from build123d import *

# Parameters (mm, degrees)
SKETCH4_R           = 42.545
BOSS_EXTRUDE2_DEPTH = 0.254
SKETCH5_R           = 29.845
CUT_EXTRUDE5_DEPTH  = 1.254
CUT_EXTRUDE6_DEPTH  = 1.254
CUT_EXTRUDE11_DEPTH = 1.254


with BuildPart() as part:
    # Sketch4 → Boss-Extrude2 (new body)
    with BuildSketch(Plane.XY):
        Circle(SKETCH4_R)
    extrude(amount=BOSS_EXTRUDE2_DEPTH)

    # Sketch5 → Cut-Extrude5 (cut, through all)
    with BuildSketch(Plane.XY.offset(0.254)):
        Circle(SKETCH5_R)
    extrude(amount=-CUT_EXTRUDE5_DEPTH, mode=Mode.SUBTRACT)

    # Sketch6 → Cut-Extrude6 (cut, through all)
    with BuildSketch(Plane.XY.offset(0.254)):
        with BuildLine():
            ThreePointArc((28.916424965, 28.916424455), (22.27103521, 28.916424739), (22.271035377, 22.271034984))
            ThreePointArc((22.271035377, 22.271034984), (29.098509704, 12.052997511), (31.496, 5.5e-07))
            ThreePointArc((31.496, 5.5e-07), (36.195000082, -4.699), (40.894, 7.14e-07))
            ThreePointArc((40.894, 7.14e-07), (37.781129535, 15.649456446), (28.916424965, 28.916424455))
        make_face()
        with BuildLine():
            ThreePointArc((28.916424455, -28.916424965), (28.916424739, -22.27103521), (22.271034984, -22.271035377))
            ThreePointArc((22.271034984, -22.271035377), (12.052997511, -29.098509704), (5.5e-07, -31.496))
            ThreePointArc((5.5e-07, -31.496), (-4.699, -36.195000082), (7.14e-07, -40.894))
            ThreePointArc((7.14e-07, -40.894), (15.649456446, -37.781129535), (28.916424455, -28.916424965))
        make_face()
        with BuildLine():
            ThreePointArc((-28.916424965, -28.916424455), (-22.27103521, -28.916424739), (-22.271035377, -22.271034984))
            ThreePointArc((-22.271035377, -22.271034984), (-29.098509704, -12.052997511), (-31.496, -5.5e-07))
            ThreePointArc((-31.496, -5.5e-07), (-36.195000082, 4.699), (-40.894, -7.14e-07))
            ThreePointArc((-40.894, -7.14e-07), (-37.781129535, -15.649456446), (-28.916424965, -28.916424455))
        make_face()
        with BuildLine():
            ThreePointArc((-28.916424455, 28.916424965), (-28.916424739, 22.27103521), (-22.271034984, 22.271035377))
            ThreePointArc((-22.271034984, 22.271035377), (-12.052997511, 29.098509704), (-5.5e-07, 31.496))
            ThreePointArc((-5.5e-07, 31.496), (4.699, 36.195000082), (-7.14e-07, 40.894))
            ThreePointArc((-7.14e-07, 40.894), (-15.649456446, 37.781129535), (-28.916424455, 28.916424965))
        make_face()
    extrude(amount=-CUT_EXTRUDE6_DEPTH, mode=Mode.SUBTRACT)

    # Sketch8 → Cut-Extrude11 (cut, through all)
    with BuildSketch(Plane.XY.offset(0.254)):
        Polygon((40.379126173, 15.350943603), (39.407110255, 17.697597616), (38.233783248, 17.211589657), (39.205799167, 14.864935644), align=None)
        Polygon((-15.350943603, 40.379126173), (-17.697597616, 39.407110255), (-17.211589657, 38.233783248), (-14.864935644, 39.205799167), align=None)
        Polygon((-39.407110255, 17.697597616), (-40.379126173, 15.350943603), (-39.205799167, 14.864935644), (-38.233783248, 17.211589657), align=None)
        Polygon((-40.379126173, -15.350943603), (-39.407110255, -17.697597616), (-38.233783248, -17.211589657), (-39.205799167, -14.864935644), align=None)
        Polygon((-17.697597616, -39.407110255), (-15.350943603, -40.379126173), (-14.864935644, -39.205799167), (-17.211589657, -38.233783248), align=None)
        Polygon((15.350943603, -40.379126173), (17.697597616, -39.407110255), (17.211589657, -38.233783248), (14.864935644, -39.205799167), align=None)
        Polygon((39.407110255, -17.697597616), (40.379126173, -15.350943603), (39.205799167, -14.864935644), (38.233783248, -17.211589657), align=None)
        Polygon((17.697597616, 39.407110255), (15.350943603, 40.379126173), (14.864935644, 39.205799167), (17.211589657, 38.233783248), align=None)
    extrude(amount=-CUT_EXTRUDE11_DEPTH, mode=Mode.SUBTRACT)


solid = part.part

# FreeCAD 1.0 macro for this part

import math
import FreeCAD as App
import Part
import Sketcher

V = App.Vector
Q = App.Units.Quantity


def add_polygon(sketch, points):
    """Adds a closed chain of lines whose ends are joined by coincident constraints."""
    first, n = sketch.GeometryCount, len(points)
    for a, b in zip(points, points[1:] + points[:1]):
        sketch.addGeometry(Part.LineSegment(App.Vector(*a, 0), App.Vector(*b, 0)), False)
    for i in range(n):
        sketch.addConstraint(Sketcher.Constraint("Coincident", first + i, 2, first + (i + 1) % n, 1))

doc = App.newDocument("Part")
body = doc.addObject("PartDesign::Body", "Body")

# Sketch on XY plane
sketch1 = body.newObject("Sketcher::SketchObject", "Sketch")
sketch1.AttachmentSupport = (doc.getObject("XY_Plane"), [""])
sketch1.MapMode = "FlatFace"
sketch1.addGeometry(Part.Circle(V(0, 0, 0), V(0, 0, 1), 43), False)
sketch1.addConstraint([
    Sketcher.Constraint("Coincident", 0, 3, -1, 1),
    Sketcher.Constraint("Diameter", 0, Q("3.35 in")),
])
pad1 = body.newObject("PartDesign::Pad", "Pad")
pad1.Profile = sketch1
pad1.Length = Q("0.01 in")

# Sketch on XY plane
sketch2 = body.newObject("Sketcher::SketchObject", "Sketch001")
sketch2.AttachmentSupport = (doc.getObject("XY_Plane"), [""])
sketch2.MapMode = "FlatFace"
sketch2.AttachmentOffset = App.Placement(V(0, 0, 0.01 * 25.4), App.Rotation())
sketch2.addGeometry(Part.Circle(V(0, 0, 0), V(0, 0, 1), 30), False)
sketch2.addConstraint([
    Sketcher.Constraint("Coincident", 0, 3, -1, 1),
    Sketcher.Constraint("Diameter", 0, Q("2.35 in")),
])
pocket1 = body.newObject("PartDesign::Pocket", "Pocket")
pocket1.Profile = sketch2
pocket1.Type = "ThroughAll"

# Sketch on XY plane
sketch3 = body.newObject("Sketcher::SketchObject", "Sketch002")
sketch3.AttachmentSupport = (doc.getObject("XY_Plane"), [""])
sketch3.MapMode = "FlatFace"
sketch3.AttachmentOffset = App.Placement(V(0, 0, 0.01 * 25.4), App.Rotation())
sketch3.addGeometry([
    Part.ArcOfCircle(Part.Circle(V(25.6, 25.6, 0), V(0, 0, 1), 4.7), math.radians(45), math.radians(225)),  # 0
    Part.ArcOfCircle(Part.Circle(V(0, 0, 0), V(0, 0, 1), 31.5), math.radians(0), math.radians(45)),  # 1
    Part.ArcOfCircle(Part.Circle(V(36.2, 0, 0), V(0, 0, 1), 4.7), math.radians(180), math.radians(360)),  # 2
    Part.ArcOfCircle(Part.Circle(V(0, 0, 0), V(0, 0, 1), 40.9), math.radians(0), math.radians(45)),  # 3
    Part.ArcOfCircle(Part.Circle(V(25.6, -25.6, 0), V(0, 0, 1), 4.7), math.radians(-45), math.radians(135)),  # 4
    Part.ArcOfCircle(Part.Circle(V(0, 0, 0), V(0, 0, 1), 31.5), math.radians(-90), math.radians(-45)),  # 5
    Part.ArcOfCircle(Part.Circle(V(0, -36.2, 0), V(0, 0, 1), 4.7), math.radians(90), math.radians(270)),  # 6
    Part.ArcOfCircle(Part.Circle(V(0, 0, 0), V(0, 0, 1), 40.9), math.radians(-90), math.radians(-45)),  # 7
    Part.ArcOfCircle(Part.Circle(V(-25.6, -25.6, 0), V(0, 0, 1), 4.7), math.radians(-135), math.radians(45)),  # 8
    Part.ArcOfCircle(Part.Circle(V(0, 0, 0), V(0, 0, 1), 31.5), math.radians(-180), math.radians(-135)),  # 9
    Part.ArcOfCircle(Part.Circle(V(-36.2, 0, 0), V(0, 0, 1), 4.7), math.radians(0), math.radians(180)),  # 10
    Part.ArcOfCircle(Part.Circle(V(0, 0, 0), V(0, 0, 1), 40.9), math.radians(-180), math.radians(-135)),  # 11
    Part.ArcOfCircle(Part.Circle(V(-25.6, 25.6, 0), V(0, 0, 1), 4.7), math.radians(135), math.radians(315)),  # 12
    Part.ArcOfCircle(Part.Circle(V(0, 0, 0), V(0, 0, 1), 31.5), math.radians(90), math.radians(135)),  # 13
    Part.ArcOfCircle(Part.Circle(V(0, 36.2, 0), V(0, 0, 1), 4.7), math.radians(-90), math.radians(90)),  # 14
    Part.ArcOfCircle(Part.Circle(V(0, 0, 0), V(0, 0, 1), 40.9), math.radians(90), math.radians(135)),  # 15
], False)
sketch3.addConstraint([
    Sketcher.Constraint("Tangent", 0, 2, 1, 2),
    Sketcher.Constraint("Tangent", 1, 1, 2, 1),
    Sketcher.Constraint("Tangent", 2, 2, 3, 1),
    Sketcher.Constraint("Tangent", 3, 2, 0, 1),
    Sketcher.Constraint("Tangent", 4, 2, 5, 2),
    Sketcher.Constraint("Tangent", 5, 1, 6, 1),
    Sketcher.Constraint("Tangent", 6, 2, 7, 1),
    Sketcher.Constraint("Tangent", 7, 2, 4, 1),
    Sketcher.Constraint("Tangent", 8, 2, 9, 2),
    Sketcher.Constraint("Tangent", 9, 1, 10, 1),
    Sketcher.Constraint("Tangent", 10, 2, 11, 1),
    Sketcher.Constraint("Tangent", 11, 2, 8, 1),
    Sketcher.Constraint("Tangent", 12, 2, 13, 2),
    Sketcher.Constraint("Tangent", 13, 1, 14, 1),
    Sketcher.Constraint("Tangent", 14, 2, 15, 1),
    Sketcher.Constraint("Tangent", 15, 2, 12, 1),
    Sketcher.Constraint("Coincident", 1, 3, -1, 1),
    Sketcher.Constraint("Coincident", 3, 3, -1, 1),
    Sketcher.Constraint("Coincident", 5, 3, -1, 1),
    Sketcher.Constraint("Coincident", 7, 3, -1, 1),
    Sketcher.Constraint("Coincident", 9, 3, -1, 1),
    Sketcher.Constraint("Coincident", 11, 3, -1, 1),
    Sketcher.Constraint("Coincident", 13, 3, -1, 1),
    Sketcher.Constraint("Coincident", 15, 3, -1, 1),
    Sketcher.Constraint("Equal", 2, 4),
    Sketcher.Constraint("Equal", 1, 5),
    Sketcher.Constraint("Equal", 6, 8),
    Sketcher.Constraint("Equal", 5, 9),
    Sketcher.Constraint("Equal", 10, 12),
    Sketcher.Constraint("Equal", 9, 13),
    Sketcher.Constraint("PointOnObject", 2, 3, -1),
    Sketcher.Constraint("PointOnObject", 6, 3, -2),
    Sketcher.Constraint("PointOnObject", 10, 3, -1),
    Sketcher.Constraint("PointOnObject", 14, 3, -2),
    Sketcher.Constraint("Horizontal", 4, 3, 8, 3),
    Sketcher.Constraint("Horizontal", 0, 3, 12, 3),
    Sketcher.Constraint("Vertical", 0, 3, 4, 3),
    Sketcher.Constraint("Radius", 1, Q("1.24 in")),
    Sketcher.Constraint("Radius", 3, Q("1.61 in")),
    Sketcher.Constraint("DistanceX", -1, 1, 0, 3, 25.59373),
])
pocket2 = body.newObject("PartDesign::Pocket", "Pocket001")
pocket2.Profile = sketch3
pocket2.Type = "ThroughAll"

# Sketch on XY plane
sketch4 = body.newObject("Sketcher::SketchObject", "Sketch003")
sketch4.AttachmentSupport = (doc.getObject("XY_Plane"), [""])
sketch4.MapMode = "FlatFace"
sketch4.AttachmentOffset = App.Placement(V(0, 0, 0.01 * 25.4), App.Rotation())
add_polygon(sketch4, [(40.4, 15.4), (39.4, 17.7), (38.2, 17.2), (39.2, 14.9)])  # lines 0-3
add_polygon(sketch4, [(-15.4, 40.4), (-17.7, 39.4), (-17.2, 38.2), (-14.9, 39.2)])  # lines 4-7
add_polygon(sketch4, [(-39.4, 17.7), (-40.4, 15.4), (-39.2, 14.9), (-38.2, 17.2)])  # lines 8-11
add_polygon(sketch4, [(-40.4, -15.4), (-39.4, -17.7), (-38.2, -17.2), (-39.2, -14.9)])  # lines 12-15
add_polygon(sketch4, [(-17.7, -39.4), (-15.4, -40.4), (-14.9, -39.2), (-17.2, -38.2)])  # lines 16-19
add_polygon(sketch4, [(15.4, -40.4), (17.7, -39.4), (17.2, -38.2), (14.9, -39.2)])  # lines 20-23
add_polygon(sketch4, [(39.4, -17.7), (40.4, -15.4), (39.2, -14.9), (38.2, -17.2)])  # lines 24-27
add_polygon(sketch4, [(17.7, 39.4), (15.4, 40.4), (14.9, 39.2), (17.2, 38.2)])  # lines 28-31
sketch4.addConstraint([
    Sketcher.Constraint("Symmetric", 0, 2, 12, 2, -1, 1),
    Sketcher.Constraint("Symmetric", 1, 2, 13, 2, -1, 1),
    Sketcher.Constraint("Symmetric", 2, 2, 14, 2, -1, 1),
    Sketcher.Constraint("Symmetric", 3, 2, 15, 2, -1, 1),
    Sketcher.Constraint("Symmetric", 4, 2, 20, 2, -1, 1),
    Sketcher.Constraint("Symmetric", 5, 2, 21, 2, -1, 1),
    Sketcher.Constraint("Symmetric", 6, 2, 22, 2, -1, 1),
    Sketcher.Constraint("Symmetric", 7, 2, 23, 2, -1, 1),
    Sketcher.Constraint("Symmetric", 8, 2, 24, 2, -1, 1),
    Sketcher.Constraint("Symmetric", 9, 2, 25, 2, -1, 1),
    Sketcher.Constraint("Symmetric", 10, 2, 26, 2, -1, 1),
    Sketcher.Constraint("Symmetric", 11, 2, 27, 2, -1, 1),
    Sketcher.Constraint("Symmetric", 16, 2, 28, 2, -1, 1),
    Sketcher.Constraint("Symmetric", 17, 2, 29, 2, -1, 1),
    Sketcher.Constraint("Symmetric", 18, 2, 30, 2, -1, 1),
    Sketcher.Constraint("Symmetric", 19, 2, 31, 2, -1, 1),
    Sketcher.Constraint("Symmetric", 3, 2, 8, 2, -2),
    Sketcher.Constraint("Symmetric", 2, 2, 9, 2, -2),
    Sketcher.Constraint("Symmetric", 1, 2, 10, 2, -2),
    Sketcher.Constraint("Symmetric", 0, 2, 11, 2, -2),
    Sketcher.Constraint("Symmetric", 19, 2, 20, 2, -2),
    Sketcher.Constraint("Symmetric", 18, 2, 21, 2, -2),
    Sketcher.Constraint("Symmetric", 17, 2, 22, 2, -2),
    Sketcher.Constraint("Symmetric", 16, 2, 23, 2, -2),
    Sketcher.Constraint("Perpendicular", 0, 1),
    Sketcher.Constraint("Perpendicular", 1, 2),
    Sketcher.Constraint("Perpendicular", 2, 3),
    Sketcher.Constraint("Parallel", 3, 4),
    Sketcher.Constraint("Perpendicular", 4, 5),
    Sketcher.Constraint("Perpendicular", 5, 6),
    Sketcher.Constraint("Perpendicular", 6, 7),
    Sketcher.Constraint("Equal", 2, 4),
    Sketcher.Constraint("Equal", 3, 5),
    Sketcher.Constraint("Distance", 0, Q("0.1 in")),
    Sketcher.Constraint("Angle", 0, Q("112.5 deg")),
    Sketcher.Constraint("Distance", 1, Q("0.05 in")),
    Sketcher.Constraint("DistanceX", -1, 1, 2, 2, 39.205799),
    Sketcher.Constraint("DistanceY", -1, 1, 6, 2, 39.205799),
    Sketcher.Constraint("DistanceX", 5, 2, 0, 2, 56.6187),
    Sketcher.Constraint("DistanceY", 0, 2, 6, 2, 21.508202),
])
pocket3 = body.newObject("PartDesign::Pocket", "Pocket002")
pocket3.Profile = sketch4
pocket3.Type = "ThroughAll"

doc.recompute()
